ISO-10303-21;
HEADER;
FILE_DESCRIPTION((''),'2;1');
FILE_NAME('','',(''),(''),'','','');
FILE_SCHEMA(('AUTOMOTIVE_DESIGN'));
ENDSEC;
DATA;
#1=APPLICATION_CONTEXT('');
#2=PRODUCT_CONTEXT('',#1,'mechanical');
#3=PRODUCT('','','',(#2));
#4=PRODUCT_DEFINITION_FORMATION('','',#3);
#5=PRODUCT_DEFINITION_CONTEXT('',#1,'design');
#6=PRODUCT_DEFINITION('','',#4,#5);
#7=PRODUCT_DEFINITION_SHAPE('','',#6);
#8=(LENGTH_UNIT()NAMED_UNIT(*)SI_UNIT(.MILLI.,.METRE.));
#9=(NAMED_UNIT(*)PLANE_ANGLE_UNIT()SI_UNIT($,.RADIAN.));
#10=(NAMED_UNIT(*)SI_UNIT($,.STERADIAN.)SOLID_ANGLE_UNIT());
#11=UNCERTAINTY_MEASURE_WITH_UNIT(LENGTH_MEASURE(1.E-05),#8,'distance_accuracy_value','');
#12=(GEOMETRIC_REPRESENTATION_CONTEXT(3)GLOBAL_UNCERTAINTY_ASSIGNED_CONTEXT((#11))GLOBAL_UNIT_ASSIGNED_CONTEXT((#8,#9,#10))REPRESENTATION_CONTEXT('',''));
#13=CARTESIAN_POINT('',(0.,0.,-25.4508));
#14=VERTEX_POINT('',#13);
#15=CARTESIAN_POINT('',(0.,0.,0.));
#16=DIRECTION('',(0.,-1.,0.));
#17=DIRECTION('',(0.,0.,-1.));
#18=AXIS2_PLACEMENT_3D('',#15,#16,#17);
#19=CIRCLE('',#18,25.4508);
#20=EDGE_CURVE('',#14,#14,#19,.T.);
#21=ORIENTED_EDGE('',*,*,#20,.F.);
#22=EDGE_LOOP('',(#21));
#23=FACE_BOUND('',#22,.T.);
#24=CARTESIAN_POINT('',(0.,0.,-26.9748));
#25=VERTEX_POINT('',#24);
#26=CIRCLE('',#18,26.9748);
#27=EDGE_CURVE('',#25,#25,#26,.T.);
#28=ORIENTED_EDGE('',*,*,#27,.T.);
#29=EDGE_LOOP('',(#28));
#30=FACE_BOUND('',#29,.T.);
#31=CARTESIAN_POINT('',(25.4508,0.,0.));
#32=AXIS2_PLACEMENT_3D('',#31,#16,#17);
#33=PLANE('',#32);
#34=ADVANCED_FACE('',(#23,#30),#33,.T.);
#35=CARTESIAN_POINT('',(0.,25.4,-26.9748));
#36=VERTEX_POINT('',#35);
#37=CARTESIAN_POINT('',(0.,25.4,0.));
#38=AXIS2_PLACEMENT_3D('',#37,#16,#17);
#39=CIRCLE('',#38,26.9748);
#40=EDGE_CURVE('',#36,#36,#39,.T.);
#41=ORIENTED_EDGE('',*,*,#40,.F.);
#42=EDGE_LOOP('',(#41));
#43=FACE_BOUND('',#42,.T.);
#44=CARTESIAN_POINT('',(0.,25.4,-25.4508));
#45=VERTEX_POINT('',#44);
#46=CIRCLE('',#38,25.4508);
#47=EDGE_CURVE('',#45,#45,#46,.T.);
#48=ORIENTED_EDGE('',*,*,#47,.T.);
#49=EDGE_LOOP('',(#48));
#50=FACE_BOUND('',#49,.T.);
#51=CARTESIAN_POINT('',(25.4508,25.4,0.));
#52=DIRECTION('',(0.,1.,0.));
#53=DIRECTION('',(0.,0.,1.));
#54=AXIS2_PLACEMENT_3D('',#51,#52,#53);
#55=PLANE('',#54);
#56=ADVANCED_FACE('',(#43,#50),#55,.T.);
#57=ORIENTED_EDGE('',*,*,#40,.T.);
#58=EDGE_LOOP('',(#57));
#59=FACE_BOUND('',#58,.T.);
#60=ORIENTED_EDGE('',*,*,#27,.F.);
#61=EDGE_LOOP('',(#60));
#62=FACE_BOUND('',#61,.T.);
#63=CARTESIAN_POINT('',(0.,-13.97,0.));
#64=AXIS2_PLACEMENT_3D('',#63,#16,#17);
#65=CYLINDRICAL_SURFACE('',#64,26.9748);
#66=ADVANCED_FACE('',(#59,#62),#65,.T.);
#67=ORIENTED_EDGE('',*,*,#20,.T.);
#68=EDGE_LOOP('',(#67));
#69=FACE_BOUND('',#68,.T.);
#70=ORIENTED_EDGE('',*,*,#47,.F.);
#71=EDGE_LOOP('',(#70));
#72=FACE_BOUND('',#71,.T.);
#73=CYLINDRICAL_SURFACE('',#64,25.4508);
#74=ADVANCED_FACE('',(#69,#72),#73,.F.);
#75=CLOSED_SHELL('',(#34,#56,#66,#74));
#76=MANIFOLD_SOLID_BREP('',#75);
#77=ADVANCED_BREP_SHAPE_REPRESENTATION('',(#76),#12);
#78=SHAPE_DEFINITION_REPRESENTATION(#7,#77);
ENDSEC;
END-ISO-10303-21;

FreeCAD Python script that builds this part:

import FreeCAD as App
import Part
import Sketcher

V = App.Vector
Q = App.Units.Quantity

doc = App.newDocument("Part")
params = doc.addObject("Spreadsheet::Sheet", "Params")
for row, (alias, value) in enumerate([
    ("sketch1_height", "1 in"),
    ("sketch1_width", "0.06 in"),
    ("revolution_angle", "360 deg"),
], start=1):
    params.set(f"A{row}", alias)
    params.set(f"B{row}", "=" + value)
    params.setAlias(f"B{row}", alias)

body = doc.addObject("PartDesign::Body", "Body")

sketch1 = doc.addObject("Sketcher::SketchObject", "Sketch")
body.addObject(sketch1)
sketch1.AttachmentSupport = (doc.XY_Plane, [""])
sketch1.MapMode = "FlatFace"
sketch1.addGeometry([
    Part.LineSegment(V(25.5, 25.4, 0), V(25.5, 0, 0)),
    Part.LineSegment(V(25.5, 0, 0), V(27, 0, 0)),
    Part.LineSegment(V(27, 0, 0), V(27, 25.4, 0)),
    Part.LineSegment(V(27, 25.4, 0), V(25.5, 25.4, 0)),
], False)
sketch1.addConstraint([
    Sketcher.Constraint("Coincident", 0, 2, 1, 1),
    Sketcher.Constraint("Coincident", 1, 2, 2, 1),
    Sketcher.Constraint("Coincident", 2, 2, 3, 1),
    Sketcher.Constraint("Coincident", 3, 2, 0, 1),
    Sketcher.Constraint("Vertical", 0),
    Sketcher.Constraint("Horizontal", 1),
    Sketcher.Constraint("Vertical", 2),
    Sketcher.Constraint("Horizontal", 3),
    Sketcher.Constraint("PointOnObject", 0, 2, -1),
    Sketcher.Constraint("DistanceY", 0, 2, 0, 1, Q("1 in")),
    Sketcher.Constraint("DistanceX", 1, 1, 1, 2, Q("0.06 in")),
    Sketcher.Constraint("DistanceX", -1, 1, 0, 2, Q("1.002 in")),
])
sketch1.setExpression("Constraints[9]", "Params.sketch1_height")
sketch1.setExpression("Constraints[10]", "Params.sketch1_width")
revolution = doc.addObject("PartDesign::Revolution", "Revolution")
body.addObject(revolution)
revolution.Profile = sketch1
revolution.ReferenceAxis = (sketch1, ["V_Axis"])
revolution.setExpression("Angle", "Params.revolution_angle")

doc.recompute()
